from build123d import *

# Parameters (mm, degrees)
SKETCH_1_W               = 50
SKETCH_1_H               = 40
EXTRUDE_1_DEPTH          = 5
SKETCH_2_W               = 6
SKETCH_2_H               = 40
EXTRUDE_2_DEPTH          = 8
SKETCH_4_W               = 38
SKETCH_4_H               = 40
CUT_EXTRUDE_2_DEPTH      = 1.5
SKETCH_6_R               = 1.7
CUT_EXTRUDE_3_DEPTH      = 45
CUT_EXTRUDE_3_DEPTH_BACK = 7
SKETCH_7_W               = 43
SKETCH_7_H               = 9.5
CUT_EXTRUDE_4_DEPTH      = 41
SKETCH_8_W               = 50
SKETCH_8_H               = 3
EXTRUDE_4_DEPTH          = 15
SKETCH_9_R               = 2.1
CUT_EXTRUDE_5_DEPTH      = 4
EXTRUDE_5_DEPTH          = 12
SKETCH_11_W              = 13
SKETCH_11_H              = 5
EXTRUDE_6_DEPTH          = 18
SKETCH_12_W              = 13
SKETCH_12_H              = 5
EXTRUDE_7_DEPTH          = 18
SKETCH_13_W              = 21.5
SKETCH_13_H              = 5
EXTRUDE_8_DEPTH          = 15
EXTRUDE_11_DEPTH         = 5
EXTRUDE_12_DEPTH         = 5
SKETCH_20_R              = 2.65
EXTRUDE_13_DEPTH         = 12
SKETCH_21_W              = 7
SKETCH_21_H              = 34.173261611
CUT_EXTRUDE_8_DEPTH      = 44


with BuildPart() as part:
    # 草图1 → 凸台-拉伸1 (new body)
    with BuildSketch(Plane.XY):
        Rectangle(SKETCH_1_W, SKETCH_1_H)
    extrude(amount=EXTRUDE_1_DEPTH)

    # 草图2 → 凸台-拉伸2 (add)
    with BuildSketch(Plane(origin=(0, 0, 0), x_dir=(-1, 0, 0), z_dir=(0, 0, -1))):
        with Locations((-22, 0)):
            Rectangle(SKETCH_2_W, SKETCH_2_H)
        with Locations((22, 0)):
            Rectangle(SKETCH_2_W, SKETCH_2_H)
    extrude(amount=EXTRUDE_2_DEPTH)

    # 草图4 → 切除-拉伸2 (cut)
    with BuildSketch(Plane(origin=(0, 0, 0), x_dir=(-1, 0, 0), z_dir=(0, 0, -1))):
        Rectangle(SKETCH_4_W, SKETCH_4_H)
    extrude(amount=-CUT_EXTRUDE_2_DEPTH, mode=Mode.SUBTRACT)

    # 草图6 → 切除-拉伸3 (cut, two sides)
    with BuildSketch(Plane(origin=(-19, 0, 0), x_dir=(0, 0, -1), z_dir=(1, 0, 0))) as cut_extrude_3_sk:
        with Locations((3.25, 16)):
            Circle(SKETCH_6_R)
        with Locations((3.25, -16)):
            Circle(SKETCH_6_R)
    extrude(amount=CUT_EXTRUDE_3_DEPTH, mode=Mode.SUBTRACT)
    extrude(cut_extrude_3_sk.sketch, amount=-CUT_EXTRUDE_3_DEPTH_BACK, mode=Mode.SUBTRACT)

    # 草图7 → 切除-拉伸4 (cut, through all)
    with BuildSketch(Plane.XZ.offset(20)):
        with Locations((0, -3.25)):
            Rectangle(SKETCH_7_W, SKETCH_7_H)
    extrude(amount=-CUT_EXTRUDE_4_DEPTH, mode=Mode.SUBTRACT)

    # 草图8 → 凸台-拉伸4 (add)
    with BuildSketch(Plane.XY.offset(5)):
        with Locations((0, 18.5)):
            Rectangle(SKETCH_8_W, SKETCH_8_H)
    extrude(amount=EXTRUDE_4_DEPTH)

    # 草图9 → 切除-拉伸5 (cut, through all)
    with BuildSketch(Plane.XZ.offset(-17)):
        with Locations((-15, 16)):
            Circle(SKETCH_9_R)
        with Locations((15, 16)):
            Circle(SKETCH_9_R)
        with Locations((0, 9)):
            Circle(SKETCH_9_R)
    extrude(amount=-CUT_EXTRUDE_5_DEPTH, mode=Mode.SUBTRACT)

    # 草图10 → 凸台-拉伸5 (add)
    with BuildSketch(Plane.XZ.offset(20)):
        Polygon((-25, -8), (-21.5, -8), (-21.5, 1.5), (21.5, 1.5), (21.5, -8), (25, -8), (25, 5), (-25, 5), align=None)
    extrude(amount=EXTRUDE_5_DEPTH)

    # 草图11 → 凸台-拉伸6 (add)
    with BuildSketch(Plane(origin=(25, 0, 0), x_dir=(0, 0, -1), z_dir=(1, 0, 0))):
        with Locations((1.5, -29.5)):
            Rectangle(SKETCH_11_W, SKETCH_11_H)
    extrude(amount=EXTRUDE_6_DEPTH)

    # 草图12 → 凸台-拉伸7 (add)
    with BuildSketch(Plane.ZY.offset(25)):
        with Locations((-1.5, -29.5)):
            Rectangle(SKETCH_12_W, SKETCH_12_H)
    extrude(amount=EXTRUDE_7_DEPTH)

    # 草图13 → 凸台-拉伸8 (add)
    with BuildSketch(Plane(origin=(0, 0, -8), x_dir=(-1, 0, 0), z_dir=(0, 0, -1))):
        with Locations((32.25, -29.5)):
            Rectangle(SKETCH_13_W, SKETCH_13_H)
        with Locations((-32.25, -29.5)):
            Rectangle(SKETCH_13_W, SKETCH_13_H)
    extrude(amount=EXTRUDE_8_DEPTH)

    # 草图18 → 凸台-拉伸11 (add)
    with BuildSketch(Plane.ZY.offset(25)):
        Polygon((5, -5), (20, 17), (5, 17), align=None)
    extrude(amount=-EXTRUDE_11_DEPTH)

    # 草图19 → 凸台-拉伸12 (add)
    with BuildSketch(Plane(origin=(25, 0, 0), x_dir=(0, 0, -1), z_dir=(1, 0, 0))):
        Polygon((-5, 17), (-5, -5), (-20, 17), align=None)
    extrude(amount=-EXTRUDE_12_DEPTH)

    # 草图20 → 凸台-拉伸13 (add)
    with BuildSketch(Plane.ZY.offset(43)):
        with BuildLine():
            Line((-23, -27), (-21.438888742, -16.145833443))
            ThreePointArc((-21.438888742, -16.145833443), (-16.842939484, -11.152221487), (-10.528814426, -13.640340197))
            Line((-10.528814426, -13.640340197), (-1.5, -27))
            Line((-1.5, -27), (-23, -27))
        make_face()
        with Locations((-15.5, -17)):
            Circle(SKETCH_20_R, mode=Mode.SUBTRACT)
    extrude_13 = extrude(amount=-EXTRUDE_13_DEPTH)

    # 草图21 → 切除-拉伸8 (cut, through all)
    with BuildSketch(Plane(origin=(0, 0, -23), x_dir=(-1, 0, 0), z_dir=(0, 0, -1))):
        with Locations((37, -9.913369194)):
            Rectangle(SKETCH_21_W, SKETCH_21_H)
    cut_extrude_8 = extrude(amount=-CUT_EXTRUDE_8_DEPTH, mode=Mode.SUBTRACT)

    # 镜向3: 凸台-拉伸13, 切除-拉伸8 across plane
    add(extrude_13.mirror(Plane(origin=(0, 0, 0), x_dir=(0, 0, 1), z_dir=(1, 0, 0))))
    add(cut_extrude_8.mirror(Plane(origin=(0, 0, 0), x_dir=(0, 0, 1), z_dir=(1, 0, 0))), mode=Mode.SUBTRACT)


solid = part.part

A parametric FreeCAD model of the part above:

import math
import FreeCAD as App
import Part
import Sketcher
from FreeCAD import Vector


def add_polygon(sketch, points):
    """Adds a closed chain of lines whose ends are joined by coincident constraints."""
    first, n = sketch.GeometryCount, len(points)
    for a, b in zip(points, points[1:] + points[:1]):
        sketch.addGeometry(Part.LineSegment(App.Vector(*a, 0), App.Vector(*b, 0)), False)
    for i in range(n):
        sketch.addConstraint(Sketcher.Constraint("Coincident", first + i, 2, first + (i + 1) % n, 1))

doc = App.newDocument("Part")
body = doc.addObject("PartDesign::Body", "Body")

# Sketch on XY plane
sketch1 = doc.addObject("Sketcher::SketchObject", "Sketch")
body.addObject(sketch1)
sketch1.AttachmentSupport = (doc.XY_Plane, [""])
sketch1.MapMode = "FlatFace"
add_polygon(sketch1, [(-25, 20), (-25, -20), (25, -20), (25, 20)])  # lines 0-3
sketch1.addConstraint(Sketcher.Constraint("Vertical", 0))
sketch1.addConstraint(Sketcher.Constraint("Horizontal", 1))
sketch1.addConstraint(Sketcher.Constraint("Vertical", 2))
sketch1.addConstraint(Sketcher.Constraint("Horizontal", 3))
sketch1.addConstraint(Sketcher.Constraint("Symmetric", 0, 2, 2, 2, -1, 1))
sketch1.addConstraint(Sketcher.Constraint("DistanceX", 1, 1, 1, 2, 50.0))
sketch1.addConstraint(Sketcher.Constraint("DistanceY", 0, 2, 0, 1, 40.0))
pad1 = doc.addObject("PartDesign::Pad", "Pad")
body.addObject(pad1)
pad1.Profile = sketch1
pad1.Length = 5

# Sketch on XY plane
sketch2 = doc.addObject("Sketcher::SketchObject", "Sketch001")
body.addObject(sketch2)
sketch2.AttachmentSupport = (doc.XY_Plane, [""])
sketch2.MapMode = "FlatFace"
add_polygon(sketch2, [(25, 20), (25, -20), (19, -20), (19, 20)])  # lines 0-3
add_polygon(sketch2, [(-19, 20), (-19, -20), (-25, -20), (-25, 20)])  # lines 4-7
sketch2.addConstraint(Sketcher.Constraint("Vertical", 0))
sketch2.addConstraint(Sketcher.Constraint("Horizontal", 1))
sketch2.addConstraint(Sketcher.Constraint("Vertical", 2))
sketch2.addConstraint(Sketcher.Constraint("Horizontal", 3))
sketch2.addConstraint(Sketcher.Constraint("Vertical", 4))
sketch2.addConstraint(Sketcher.Constraint("Horizontal", 5))
sketch2.addConstraint(Sketcher.Constraint("Vertical", 6))
sketch2.addConstraint(Sketcher.Constraint("Horizontal", 7))
sketch2.addConstraint(Sketcher.Constraint("Symmetric", 2, 2, 4, 2, -1, 1))
sketch2.addConstraint(Sketcher.Constraint("Symmetric", 0, 2, 6, 2, -1, 1))
sketch2.addConstraint(Sketcher.Constraint("Horizontal", 1, 2, 4, 2))
sketch2.addConstraint(Sketcher.Constraint("DistanceX", 1, 2, 1, 1, 6.0))
sketch2.addConstraint(Sketcher.Constraint("DistanceY", 0, 2, 0, 1, 40.0))
sketch2.addConstraint(Sketcher.Constraint("DistanceX", -1, 1, 0, 2, 25.0))
pad2 = doc.addObject("PartDesign::Pad", "Pad001")
body.addObject(pad2)
pad2.Profile = sketch2
pad2.Length = 8
pad2.Reversed = True

# Sketch on XY plane
sketch3 = doc.addObject("Sketcher::SketchObject", "Sketch002")
body.addObject(sketch3)
sketch3.AttachmentSupport = (doc.XY_Plane, [""])
sketch3.MapMode = "FlatFace"
add_polygon(sketch3, [(19, 20), (19, -20), (-19, -20), (-19, 20)])  # lines 0-3
sketch3.addConstraint(Sketcher.Constraint("Vertical", 0))
sketch3.addConstraint(Sketcher.Constraint("Horizontal", 1))
sketch3.addConstraint(Sketcher.Constraint("Vertical", 2))
sketch3.addConstraint(Sketcher.Constraint("Horizontal", 3))
sketch3.addConstraint(Sketcher.Constraint("Symmetric", 0, 2, 2, 2, -1, 1))
sketch3.addConstraint(Sketcher.Constraint("DistanceX", 1, 2, 1, 1, 38.0))
sketch3.addConstraint(Sketcher.Constraint("DistanceY", 0, 2, 0, 1, 40.0))
pocket1 = doc.addObject("PartDesign::Pocket", "Pocket")
body.addObject(pocket1)
pocket1.Profile = sketch3
pocket1.Length = 1.5
pocket1.Reversed = True

# Sketch on YZ plane
sketch4 = doc.addObject("Sketcher::SketchObject", "Sketch003")
body.addObject(sketch4)
sketch4.AttachmentSupport = (doc.YZ_Plane, [""])
sketch4.MapMode = "FlatFace"
sketch4.AttachmentOffset = App.Placement(Vector(0, 0, -19), App.Rotation())
sketch4.addGeometry(Part.Circle(Vector(16, -3.25, 0), Vector(0, 0, 1), 1.7), False)
sketch4.addGeometry(Part.Circle(Vector(-16, -3.25, 0), Vector(0, 0, 1), 1.7), False)
sketch4.addConstraint(Sketcher.Constraint("Equal", 0, 1))
sketch4.addConstraint(Sketcher.Constraint("Symmetric", 0, 3, 1, 3, -2))
sketch4.addConstraint(Sketcher.Constraint("Diameter", 0, 3.4))
sketch4.addConstraint(Sketcher.Constraint("DistanceX", -1, 1, 0, 3, 16.0))
sketch4.addConstraint(Sketcher.Constraint("DistanceY", 0, 3, -1, 1, 3.25))
pocket2 = doc.addObject("PartDesign::Pocket", "Pocket001")
body.addObject(pocket2)
pocket2.Profile = sketch4
pocket2.Type = "ThroughAll"
pocket2.Midplane = True

# Sketch on XZ plane
sketch5 = doc.addObject("Sketcher::SketchObject", "Sketch004")
body.addObject(sketch5)
sketch5.AttachmentSupport = (doc.XZ_Plane, [""])
sketch5.MapMode = "FlatFace"
sketch5.AttachmentOffset = App.Placement(Vector(0, 0, 20), App.Rotation())
add_polygon(sketch5, [(-21.5, 1.5), (-21.5, -8), (21.5, -8), (21.5, 1.5)])  # lines 0-3
sketch5.addConstraint(Sketcher.Constraint("Vertical", 0))
sketch5.addConstraint(Sketcher.Constraint("Horizontal", 1))
sketch5.addConstraint(Sketcher.Constraint("Vertical", 2))
sketch5.addConstraint(Sketcher.Constraint("Horizontal", 3))
sketch5.addConstraint(Sketcher.Constraint("DistanceX", 1, 1, 1, 2, 43.0))
sketch5.addConstraint(Sketcher.Constraint("DistanceY", 0, 2, 0, 1, 9.5))
sketch5.addConstraint(Sketcher.Constraint("DistanceY", 0, 2, -1, 1, 8.0))
sketch5.addConstraint(Sketcher.Constraint("DistanceX", 0, 2, -1, 1, 21.5))
pocket3 = doc.addObject("PartDesign::Pocket", "Pocket002")
body.addObject(pocket3)
pocket3.Profile = sketch5
pocket3.Type = "ThroughAll"

# Sketch on XY plane
sketch6 = doc.addObject("Sketcher::SketchObject", "Sketch005")
body.addObject(sketch6)
sketch6.AttachmentSupport = (doc.XY_Plane, [""])
sketch6.MapMode = "FlatFace"
sketch6.AttachmentOffset = App.Placement(Vector(0, 0, 5), App.Rotation())
add_polygon(sketch6, [(-25, 20), (-25, 17), (25, 17), (25, 20)])  # lines 0-3
sketch6.addConstraint(Sketcher.Constraint("Vertical", 0))
sketch6.addConstraint(Sketcher.Constraint("Horizontal", 1))
sketch6.addConstraint(Sketcher.Constraint("Vertical", 2))
sketch6.addConstraint(Sketcher.Constraint("Horizontal", 3))
sketch6.addConstraint(Sketcher.Constraint("DistanceX", 1, 1, 1, 2, 50.0))
sketch6.addConstraint(Sketcher.Constraint("DistanceY", 0, 2, 0, 1, 3.0))
sketch6.addConstraint(Sketcher.Constraint("DistanceX", 0, 2, -1, 1, 25.0))
sketch6.addConstraint(Sketcher.Constraint("DistanceY", -1, 1, 0, 2, 17.0))
pad3 = doc.addObject("PartDesign::Pad", "Pad002")
body.addObject(pad3)
pad3.Profile = sketch6
pad3.Length = 15

# Sketch on XZ plane
sketch7 = doc.addObject("Sketcher::SketchObject", "Sketch006")
body.addObject(sketch7)
sketch7.AttachmentSupport = (doc.XZ_Plane, [""])
sketch7.MapMode = "FlatFace"
sketch7.AttachmentOffset = App.Placement(Vector(0, 0, -17), App.Rotation())
sketch7.addGeometry(Part.Circle(Vector(-15, 16, 0), Vector(0, 0, 1), 2.1), False)
sketch7.addGeometry(Part.Circle(Vector(15, 16, 0), Vector(0, 0, 1), 2.1), False)
sketch7.addGeometry(Part.Circle(Vector(0, 9, 0), Vector(0, 0, 1), 2.1), False)
sketch7.addConstraint(Sketcher.Constraint("Equal", 0, 1))
sketch7.addConstraint(Sketcher.Constraint("Equal", 1, 2))
sketch7.addConstraint(Sketcher.Constraint("Symmetric", 0, 3, 1, 3, -2))
sketch7.addConstraint(Sketcher.Constraint("PointOnObject", 2, 3, -2))
sketch7.addConstraint(Sketcher.Constraint("Diameter", 0, 4.2))
sketch7.addConstraint(Sketcher.Constraint("DistanceX", 0, 3, -1, 1, 15.0))
sketch7.addConstraint(Sketcher.Constraint("DistanceY", -1, 1, 0, 3, 16.0))
sketch7.addConstraint(Sketcher.Constraint("DistanceY", -1, 1, 2, 3, 9.0))
pocket4 = doc.addObject("PartDesign::Pocket", "Pocket003")
body.addObject(pocket4)
pocket4.Profile = sketch7
pocket4.Type = "ThroughAll"

# Sketch on XZ plane
sketch8 = doc.addObject("Sketcher::SketchObject", "Sketch007")
body.addObject(sketch8)
sketch8.AttachmentSupport = (doc.XZ_Plane, [""])
sketch8.MapMode = "FlatFace"
sketch8.AttachmentOffset = App.Placement(Vector(0, 0, 20), App.Rotation())
add_polygon(sketch8, [(-25, -8), (-21.5, -8), (-21.5, 1.5), (21.5, 1.5), (21.5, -8), (25, -8), (25, 5), (-25, 5)])  # lines 0-7
sketch8.addConstraint(Sketcher.Constraint("Horizontal", 0))
sketch8.addConstraint(Sketcher.Constraint("Vertical", 1))
sketch8.addConstraint(Sketcher.Constraint("Horizontal", 2))
sketch8.addConstraint(Sketcher.Constraint("Vertical", 3))
sketch8.addConstraint(Sketcher.Constraint("Horizontal", 4))
sketch8.addConstraint(Sketcher.Constraint("Vertical", 5))
sketch8.addConstraint(Sketcher.Constraint("Horizontal", 6))
sketch8.addConstraint(Sketcher.Constraint("Vertical", 7))
sketch8.addConstraint(Sketcher.Constraint("Symmetric", 0, 2, 3, 2, -2))
sketch8.addConstraint(Sketcher.Constraint("Equal", 0, 4))
sketch8.addConstraint(Sketcher.Constraint("DistanceX", 2, 1, 2, 2, 43.0))
sketch8.addConstraint(Sketcher.Constraint("DistanceX", 6, 2, 6, 1, 50.0))
sketch8.addConstraint(Sketcher.Constraint("DistanceY", 5, 1, 5, 2, 13.0))
sketch8.addConstraint(Sketcher.Constraint("DistanceY", 1, 1, 1, 2, 9.5))
sketch8.addConstraint(Sketcher.Constraint("DistanceY", 0, 2, -1, 1, 8.0))
pad4 = doc.addObject("PartDesign::Pad", "Pad003")
body.addObject(pad4)
pad4.Profile = sketch8
pad4.Length = 12

# Sketch on YZ plane
sketch9 = doc.addObject("Sketcher::SketchObject", "Sketch008")
body.addObject(sketch9)
sketch9.AttachmentSupport = (doc.YZ_Plane, [""])
sketch9.MapMode = "FlatFace"
sketch9.AttachmentOffset = App.Placement(Vector(0, 0, 25), App.Rotation())
add_polygon(sketch9, [(-27, 5), (-32, 5), (-32, -8), (-27, -8)])  # lines 0-3
sketch9.addConstraint(Sketcher.Constraint("Horizontal", 0))
sketch9.addConstraint(Sketcher.Constraint("Vertical", 1))
sketch9.addConstraint(Sketcher.Constraint("Horizontal", 2))
sketch9.addConstraint(Sketcher.Constraint("Vertical", 3))
sketch9.addConstraint(Sketcher.Constraint("DistanceX", 0, 2, 0, 1, 5.0))
sketch9.addConstraint(Sketcher.Constraint("DistanceY", 1, 2, 1, 1, 13.0))
sketch9.addConstraint(Sketcher.Constraint("DistanceX", 0, 2, -1, 1, 32.0))
sketch9.addConstraint(Sketcher.Constraint("DistanceY", -1, 1, 0, 2, 5.0))
pad5 = doc.addObject("PartDesign::Pad", "Pad004")
body.addObject(pad5)
pad5.Profile = sketch9
pad5.Length = 18

# Sketch on YZ plane
sketch10 = doc.addObject("Sketcher::SketchObject", "Sketch009")
body.addObject(sketch10)
sketch10.AttachmentSupport = (doc.YZ_Plane, [""])
sketch10.MapMode = "FlatFace"
sketch10.AttachmentOffset = App.Placement(Vector(0, 0, -25), App.Rotation())
add_polygon(sketch10, [(-27, -8), (-32, -8), (-32, 5), (-27, 5)])  # lines 0-3
sketch10.addConstraint(Sketcher.Constraint("Horizontal", 0))
sketch10.addConstraint(Sketcher.Constraint("Vertical", 1))
sketch10.addConstraint(Sketcher.Constraint("Horizontal", 2))
sketch10.addConstraint(Sketcher.Constraint("Vertical", 3))
sketch10.addConstraint(Sketcher.Constraint("DistanceX", 0, 2, 0, 1, 5.0))
sketch10.addConstraint(Sketcher.Constraint("DistanceY", 1, 1, 1, 2, 13.0))
sketch10.addConstraint(Sketcher.Constraint("DistanceX", 0, 2, -1, 1, 32.0))
sketch10.addConstraint(Sketcher.Constraint("DistanceY", 0, 2, -1, 1, 8.0))
pad6 = doc.addObject("PartDesign::Pad", "Pad005")
body.addObject(pad6)
pad6.Profile = sketch10
pad6.Length = 18
pad6.Reversed = True

# Sketch on XY plane
sketch11 = doc.addObject("Sketcher::SketchObject", "Sketch010")
body.addObject(sketch11)
sketch11.AttachmentSupport = (doc.XY_Plane, [""])
sketch11.MapMode = "FlatFace"
sketch11.AttachmentOffset = App.Placement(Vector(0, 0, -8), App.Rotation())
add_polygon(sketch11, [(-21.5, -27), (-21.5, -32), (-43, -32), (-43, -27)])  # lines 0-3
add_polygon(sketch11, [(43, -27), (43, -32), (21.5, -32), (21.5, -27)])  # lines 4-7
sketch11.addConstraint(Sketcher.Constraint("Vertical", 0))
sketch11.addConstraint(Sketcher.Constraint("Horizontal", 1))
sketch11.addConstraint(Sketcher.Constraint("Vertical", 2))
sketch11.addConstraint(Sketcher.Constraint("Horizontal", 3))
sketch11.addConstraint(Sketcher.Constraint("Vertical", 4))
sketch11.addConstraint(Sketcher.Constraint("Horizontal", 5))
sketch11.addConstraint(Sketcher.Constraint("Vertical", 6))
sketch11.addConstraint(Sketcher.Constraint("Horizontal", 7))
sketch11.addConstraint(Sketcher.Constraint("Symmetric", 1, 2, 4, 2, -2))
sketch11.addConstraint(Sketcher.Constraint("Symmetric", 3, 2, 6, 2, -2))
sketch11.addConstraint(Sketcher.Constraint("DistanceY", 0, 2, 0, 1, 5.0))
sketch11.addConstraint(Sketcher.Constraint("DistanceX", 1, 2, 1, 1, 21.5))
sketch11.addConstraint(Sketcher.Constraint("DistanceY", 0, 2, -1, 1, 32.0))
sketch11.addConstraint(Sketcher.Constraint("DistanceX", 1, 2, -1, 1, 43.0))
pad7 = doc.addObject("PartDesign::Pad", "Pad006")
body.addObject(pad7)
pad7.Profile = sketch11
pad7.Length = 15
pad7.Reversed = True

# Sketch on YZ plane
sketch12 = doc.addObject("Sketcher::SketchObject", "Sketch011")
body.addObject(sketch12)
sketch12.AttachmentSupport = (doc.YZ_Plane, [""])
sketch12.MapMode = "FlatFace"
sketch12.AttachmentOffset = App.Placement(Vector(0, 0, -25), App.Rotation())
add_polygon(sketch12, [(-5, 5), (17, 20), (17, 5)])  # lines 0-2
sketch12.addConstraint(Sketcher.Constraint("Vertical", 1))
sketch12.addConstraint(Sketcher.Constraint("Horizontal", 2))
sketch12.addConstraint(Sketcher.Constraint("DistanceX", 2, 2, 2, 1, 22.0))
sketch12.addConstraint(Sketcher.Constraint("DistanceY", 1, 2, 1, 1, 15.0))
sketch12.addConstraint(Sketcher.Constraint("DistanceX", -1, 1, 0, 2, 17.0))
sketch12.addConstraint(Sketcher.Constraint("DistanceY", -1, 1, 0, 2, 20.0))
pad8 = doc.addObject("PartDesign::Pad", "Pad007")
body.addObject(pad8)
pad8.Profile = sketch12
pad8.Length = 5

# Sketch on YZ plane
sketch13 = doc.addObject("Sketcher::SketchObject", "Sketch012")
body.addObject(sketch13)
sketch13.AttachmentSupport = (doc.YZ_Plane, [""])
sketch13.MapMode = "FlatFace"
sketch13.AttachmentOffset = App.Placement(Vector(0, 0, 25), App.Rotation())
add_polygon(sketch13, [(-5, 5), (17, 5), (17, 20)])  # lines 0-2
sketch13.addConstraint(Sketcher.Constraint("Horizontal", 0))
sketch13.addConstraint(Sketcher.Constraint("Vertical", 1))
sketch13.addConstraint(Sketcher.Constraint("DistanceX", 0, 1, 0, 2, 22.0))
sketch13.addConstraint(Sketcher.Constraint("DistanceY", 1, 1, 1, 2, 15.0))
sketch13.addConstraint(Sketcher.Constraint("DistanceX", -1, 1, 0, 2, 17.0))
sketch13.addConstraint(Sketcher.Constraint("DistanceY", -1, 1, 0, 2, 5.0))
pad9 = doc.addObject("PartDesign::Pad", "Pad008")
body.addObject(pad9)
pad9.Profile = sketch13
pad9.Length = 5
pad9.Reversed = True

# Sketch on YZ plane
sketch14 = doc.addObject("Sketcher::SketchObject", "Sketch013")
body.addObject(sketch14)
sketch14.AttachmentSupport = (doc.YZ_Plane, [""])
sketch14.MapMode = "FlatFace"
sketch14.AttachmentOffset = App.Placement(Vector(0, 0, -43), App.Rotation())
sketch14.addGeometry(Part.LineSegment(Vector(-16.145833, -21.438889, 0), Vector(-27, -23, 0)), False)
sketch14.addGeometry(Part.LineSegment(Vector(-27, -23, 0), Vector(-27, -1.5, 0)), False)
sketch14.addGeometry(Part.LineSegment(Vector(-27, -1.5, 0), Vector(-13.64034, -10.528814, 0)), False)
sketch14.addGeometry(Part.ArcOfCircle(Part.Circle(Vector(-17, -15.5, 0), Vector(0, 0, 1), 6), math.radians(-81.815504), math.radians(55.948123)), False)
sketch14.addGeometry(Part.Circle(Vector(-17, -15.5, 0), Vector(0, 0, 1), 2.65), False)
sketch14.addConstraint(Sketcher.Constraint("Coincident", 0, 2, 1, 1))
sketch14.addConstraint(Sketcher.Constraint("Coincident", 1, 2, 2, 1))
sketch14.addConstraint(Sketcher.Constraint("Tangent", 2, 2, 3, 2))
sketch14.addConstraint(Sketcher.Constraint("Tangent", 3, 1, 0, 1))
sketch14.addConstraint(Sketcher.Constraint("Vertical", 1))
sketch14.addConstraint(Sketcher.Constraint("Coincident", 4, 3, 3, 3))
sketch14.addConstraint(Sketcher.Constraint("Radius", 3, 6.0))
sketch14.addConstraint(Sketcher.Constraint("Diameter", 4, 5.3))
sketch14.addConstraint(Sketcher.Constraint("DistanceY", 1, 1, 1, 2, 21.5))
sketch14.addConstraint(Sketcher.Constraint("DistanceX", 3, 3, -1, 1, 17.0))
sketch14.addConstraint(Sketcher.Constraint("DistanceX", 0, 2, -1, 1, 27.0))
sketch14.addConstraint(Sketcher.Constraint("DistanceY", 0, 2, -1, 1, 23.0))
sketch14.addConstraint(Sketcher.Constraint("DistanceY", 3, 3, 1, 2, 14.0))
pad10 = doc.addObject("PartDesign::Pad", "Pad009")
body.addObject(pad10)
pad10.Profile = sketch14
pad10.Length = 12

# Sketch on XY plane
sketch15 = doc.addObject("Sketcher::SketchObject", "Sketch014")
body.addObject(sketch15)
sketch15.AttachmentSupport = (doc.XY_Plane, [""])
sketch15.MapMode = "FlatFace"
sketch15.AttachmentOffset = App.Placement(Vector(0, 0, -23), App.Rotation())
add_polygon(sketch15, [(-33.5, 7.173262), (-33.5, -27), (-40.5, -27), (-40.5, 7.173262)])  # lines 0-3
sketch15.addConstraint(Sketcher.Constraint("Vertical", 0))
sketch15.addConstraint(Sketcher.Constraint("Horizontal", 1))
sketch15.addConstraint(Sketcher.Constraint("Vertical", 2))
sketch15.addConstraint(Sketcher.Constraint("Horizontal", 3))
sketch15.addConstraint(Sketcher.Constraint("DistanceX", 1, 2, 1, 1, 7.0))
sketch15.addConstraint(Sketcher.Constraint("DistanceY", 0, 2, -1, 1, 27.0))
sketch15.addConstraint(Sketcher.Constraint("DistanceX", 0, 2, -1, 1, 33.5))
sketch15.addConstraint(Sketcher.Constraint("DistanceY", 0, 2, 0, 1, 34.173262))
pocket5 = doc.addObject("PartDesign::Pocket", "Pocket004")
body.addObject(pocket5)
pocket5.Profile = sketch15
pocket5.Type = "ThroughAll"
pocket5.Reversed = True
doc.recompute()

mirrored = doc.addObject("PartDesign::Mirrored", "Mirrored")
body.addObject(mirrored)
mirrored.Originals = [pad10, pocket5]
mirrored.MirrorPlane = (doc.YZ_Plane, [""])
body.Tip = mirrored

doc.recompute()
